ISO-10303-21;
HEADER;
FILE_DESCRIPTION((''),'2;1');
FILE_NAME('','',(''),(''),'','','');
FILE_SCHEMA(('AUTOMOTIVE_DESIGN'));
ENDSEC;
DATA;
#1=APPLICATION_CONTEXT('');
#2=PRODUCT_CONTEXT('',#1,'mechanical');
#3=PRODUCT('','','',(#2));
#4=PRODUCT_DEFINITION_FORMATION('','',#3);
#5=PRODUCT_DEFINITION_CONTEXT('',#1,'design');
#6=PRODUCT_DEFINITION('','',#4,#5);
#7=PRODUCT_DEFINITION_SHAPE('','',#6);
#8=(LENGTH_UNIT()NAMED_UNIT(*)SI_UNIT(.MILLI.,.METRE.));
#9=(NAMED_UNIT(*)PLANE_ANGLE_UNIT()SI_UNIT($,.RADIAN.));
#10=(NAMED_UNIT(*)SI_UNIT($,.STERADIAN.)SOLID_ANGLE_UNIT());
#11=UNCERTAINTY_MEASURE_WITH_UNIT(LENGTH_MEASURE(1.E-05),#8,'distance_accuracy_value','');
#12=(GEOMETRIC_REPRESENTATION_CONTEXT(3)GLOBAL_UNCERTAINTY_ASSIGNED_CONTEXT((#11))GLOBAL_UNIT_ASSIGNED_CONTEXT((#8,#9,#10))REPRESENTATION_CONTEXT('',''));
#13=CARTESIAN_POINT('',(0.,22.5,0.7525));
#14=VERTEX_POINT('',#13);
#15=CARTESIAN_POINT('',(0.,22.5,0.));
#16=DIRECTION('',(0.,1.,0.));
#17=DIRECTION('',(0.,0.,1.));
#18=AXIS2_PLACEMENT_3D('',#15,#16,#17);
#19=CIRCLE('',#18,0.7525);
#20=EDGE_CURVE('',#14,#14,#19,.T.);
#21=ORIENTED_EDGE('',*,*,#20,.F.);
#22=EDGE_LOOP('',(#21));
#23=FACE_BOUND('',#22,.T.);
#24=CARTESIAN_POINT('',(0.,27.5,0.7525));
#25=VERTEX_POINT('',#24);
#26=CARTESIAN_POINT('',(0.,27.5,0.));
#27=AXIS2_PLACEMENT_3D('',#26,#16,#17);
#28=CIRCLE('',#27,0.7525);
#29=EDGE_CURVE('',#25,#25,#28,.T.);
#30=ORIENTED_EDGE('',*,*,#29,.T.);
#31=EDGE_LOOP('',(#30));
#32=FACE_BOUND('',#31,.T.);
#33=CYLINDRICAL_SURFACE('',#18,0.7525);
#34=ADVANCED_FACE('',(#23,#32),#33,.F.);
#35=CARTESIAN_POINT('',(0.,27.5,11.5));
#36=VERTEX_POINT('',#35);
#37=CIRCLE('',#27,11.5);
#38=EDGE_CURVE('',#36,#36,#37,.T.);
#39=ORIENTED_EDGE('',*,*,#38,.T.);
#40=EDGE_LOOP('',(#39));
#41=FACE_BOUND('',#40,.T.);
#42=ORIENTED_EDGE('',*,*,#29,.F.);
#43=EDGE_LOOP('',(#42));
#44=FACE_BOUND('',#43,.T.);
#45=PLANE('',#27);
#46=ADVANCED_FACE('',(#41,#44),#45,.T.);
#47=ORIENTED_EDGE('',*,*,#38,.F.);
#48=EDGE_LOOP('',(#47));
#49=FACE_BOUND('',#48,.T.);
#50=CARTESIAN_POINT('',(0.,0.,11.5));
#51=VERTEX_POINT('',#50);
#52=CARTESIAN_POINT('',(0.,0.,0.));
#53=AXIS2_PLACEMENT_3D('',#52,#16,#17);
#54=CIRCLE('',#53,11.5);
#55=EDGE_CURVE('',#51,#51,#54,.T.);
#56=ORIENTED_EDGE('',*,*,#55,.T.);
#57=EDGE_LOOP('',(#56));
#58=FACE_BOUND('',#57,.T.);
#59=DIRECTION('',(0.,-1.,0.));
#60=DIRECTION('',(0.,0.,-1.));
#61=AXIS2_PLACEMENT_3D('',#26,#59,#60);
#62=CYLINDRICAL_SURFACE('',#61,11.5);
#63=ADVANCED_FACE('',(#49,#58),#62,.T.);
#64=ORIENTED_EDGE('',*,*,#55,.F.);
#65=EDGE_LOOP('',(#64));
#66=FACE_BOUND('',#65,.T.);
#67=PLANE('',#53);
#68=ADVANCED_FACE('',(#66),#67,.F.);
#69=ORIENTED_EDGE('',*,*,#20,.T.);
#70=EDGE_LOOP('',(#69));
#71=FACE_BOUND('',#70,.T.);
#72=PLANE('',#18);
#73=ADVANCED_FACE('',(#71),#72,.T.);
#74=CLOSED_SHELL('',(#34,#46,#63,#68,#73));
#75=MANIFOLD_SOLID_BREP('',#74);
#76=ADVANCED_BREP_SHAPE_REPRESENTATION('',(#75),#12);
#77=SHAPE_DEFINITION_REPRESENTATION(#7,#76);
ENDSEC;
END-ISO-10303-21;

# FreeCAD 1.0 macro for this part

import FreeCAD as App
import Part
import Sketcher
from FreeCAD import Vector
Q = App.Units.Quantity

doc = App.newDocument("Part")
body = doc.addObject("PartDesign::Body", "Body")

# Sketch on XZ plane
sketch1 = body.newObject("Sketcher::SketchObject", "Sketch")
sketch1.AttachmentSupport = (doc.getObject("XZ_Plane"), [""])
sketch1.MapMode = "FlatFace"
sketch1.addGeometry(Part.Circle(Vector(0, 0, 0), Vector(0, 0, 1), 12), False)
sketch1.addConstraint([
    Sketcher.Constraint("Coincident", 0, 3, -1, 1),
    Sketcher.Constraint("Diameter", 0, Q("23 mm")),
])
pad1 = body.newObject("PartDesign::Pad", "Pad")
pad1.Profile = sketch1
pad1.Length = 27.5
pad1.Reversed = True

# Sketch on XZ plane
sketch2 = body.newObject("Sketcher::SketchObject", "Sketch001")
sketch2.AttachmentSupport = (doc.getObject("XZ_Plane"), [""])
sketch2.MapMode = "FlatFace"
sketch2.AttachmentOffset = App.Placement(Vector(0, 0, -27.5), App.Rotation())
sketch2.addGeometry(Part.Circle(Vector(0, 0, 0), Vector(0, 0, 1), 0.8), False)
sketch2.addConstraint([
    Sketcher.Constraint("Coincident", 0, 3, -1, 1),
    Sketcher.Constraint("Diameter", 0, Q("1.505 mm")),
])
pocket1 = body.newObject("PartDesign::Pocket", "Pocket")
pocket1.Profile = sketch2
pocket1.Length = 5
pocket1.Reversed = True

doc.recompute()
